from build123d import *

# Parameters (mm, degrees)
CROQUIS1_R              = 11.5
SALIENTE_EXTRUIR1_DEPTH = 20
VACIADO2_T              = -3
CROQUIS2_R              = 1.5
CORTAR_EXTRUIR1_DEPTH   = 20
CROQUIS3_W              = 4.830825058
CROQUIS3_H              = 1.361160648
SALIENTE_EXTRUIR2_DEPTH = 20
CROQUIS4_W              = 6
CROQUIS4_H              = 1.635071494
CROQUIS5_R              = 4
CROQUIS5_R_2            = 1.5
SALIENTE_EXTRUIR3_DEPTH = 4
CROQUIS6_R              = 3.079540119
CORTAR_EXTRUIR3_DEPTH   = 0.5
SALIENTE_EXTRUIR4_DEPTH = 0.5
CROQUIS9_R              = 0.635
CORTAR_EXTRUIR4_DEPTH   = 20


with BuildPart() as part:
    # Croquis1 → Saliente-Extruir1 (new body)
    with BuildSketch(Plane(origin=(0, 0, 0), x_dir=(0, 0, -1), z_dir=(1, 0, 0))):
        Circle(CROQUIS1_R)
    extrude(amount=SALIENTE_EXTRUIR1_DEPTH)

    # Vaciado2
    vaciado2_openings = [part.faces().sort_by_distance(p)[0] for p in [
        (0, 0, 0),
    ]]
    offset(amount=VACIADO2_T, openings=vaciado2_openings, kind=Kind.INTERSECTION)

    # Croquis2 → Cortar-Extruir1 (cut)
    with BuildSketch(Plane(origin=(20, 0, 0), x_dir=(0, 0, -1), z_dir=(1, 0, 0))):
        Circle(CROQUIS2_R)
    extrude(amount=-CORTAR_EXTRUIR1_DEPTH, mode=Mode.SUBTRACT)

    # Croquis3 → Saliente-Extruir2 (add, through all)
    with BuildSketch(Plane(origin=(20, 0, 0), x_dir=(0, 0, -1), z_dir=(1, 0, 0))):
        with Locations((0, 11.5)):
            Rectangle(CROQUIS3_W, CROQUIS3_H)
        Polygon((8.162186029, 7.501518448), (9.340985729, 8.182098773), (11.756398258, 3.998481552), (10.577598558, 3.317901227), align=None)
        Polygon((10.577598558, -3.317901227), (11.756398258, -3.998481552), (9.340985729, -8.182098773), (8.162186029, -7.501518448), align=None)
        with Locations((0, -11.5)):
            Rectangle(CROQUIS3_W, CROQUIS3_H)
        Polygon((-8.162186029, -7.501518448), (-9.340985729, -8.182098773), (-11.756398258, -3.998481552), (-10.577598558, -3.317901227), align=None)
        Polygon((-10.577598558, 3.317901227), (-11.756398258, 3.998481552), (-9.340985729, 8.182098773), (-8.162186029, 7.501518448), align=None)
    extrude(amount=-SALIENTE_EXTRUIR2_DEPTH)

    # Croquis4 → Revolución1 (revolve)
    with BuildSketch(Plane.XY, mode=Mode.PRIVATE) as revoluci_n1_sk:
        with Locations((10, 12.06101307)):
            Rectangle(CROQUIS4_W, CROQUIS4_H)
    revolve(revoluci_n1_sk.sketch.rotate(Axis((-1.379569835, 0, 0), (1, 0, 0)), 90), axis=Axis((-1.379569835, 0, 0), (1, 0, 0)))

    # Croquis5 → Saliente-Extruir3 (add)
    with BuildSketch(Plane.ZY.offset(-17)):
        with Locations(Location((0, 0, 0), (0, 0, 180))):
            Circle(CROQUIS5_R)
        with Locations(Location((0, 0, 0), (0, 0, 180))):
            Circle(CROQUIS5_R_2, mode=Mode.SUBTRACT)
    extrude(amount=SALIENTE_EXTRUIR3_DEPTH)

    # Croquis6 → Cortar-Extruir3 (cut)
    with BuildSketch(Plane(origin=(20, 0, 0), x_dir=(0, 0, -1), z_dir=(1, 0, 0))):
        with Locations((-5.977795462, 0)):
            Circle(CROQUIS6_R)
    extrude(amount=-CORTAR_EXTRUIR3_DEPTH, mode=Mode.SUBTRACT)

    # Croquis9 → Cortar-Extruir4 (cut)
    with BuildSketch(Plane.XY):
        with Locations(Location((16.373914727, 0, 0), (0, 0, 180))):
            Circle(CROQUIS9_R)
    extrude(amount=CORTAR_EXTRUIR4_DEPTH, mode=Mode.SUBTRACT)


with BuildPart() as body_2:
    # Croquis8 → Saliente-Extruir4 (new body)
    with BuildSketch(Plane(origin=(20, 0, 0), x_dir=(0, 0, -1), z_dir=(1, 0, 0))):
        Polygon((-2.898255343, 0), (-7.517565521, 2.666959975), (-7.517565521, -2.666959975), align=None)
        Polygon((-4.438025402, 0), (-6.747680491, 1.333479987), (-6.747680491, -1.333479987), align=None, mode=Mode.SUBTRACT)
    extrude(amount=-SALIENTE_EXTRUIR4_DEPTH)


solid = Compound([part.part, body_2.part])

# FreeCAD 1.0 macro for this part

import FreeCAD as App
import Part
import Sketcher

V = App.Vector
Q = App.Units.Quantity


def faces_at(feature, points):
    """Names of the faces that lie closest to the given points."""
    faces = feature.Shape.Faces
    near = lambda p: min(range(len(faces)), key=lambda i: faces[i].distToShape(Part.Vertex(*p))[0])
    return sorted({f"Face{near(p) + 1}" for p in points})


def add_polygon(sketch, points):
    """Adds a closed chain of lines whose ends are joined by coincident constraints."""
    first, n = sketch.GeometryCount, len(points)
    for a, b in zip(points, points[1:] + points[:1]):
        sketch.addGeometry(Part.LineSegment(App.Vector(*a, 0), App.Vector(*b, 0)), False)
    for i in range(n):
        sketch.addConstraint(Sketcher.Constraint("Coincident", first + i, 2, first + (i + 1) % n, 1))

doc = App.newDocument("Part")
body = doc.addObject("PartDesign::Body", "Body")

# Sketch on YZ plane
sketch1 = body.newObject("Sketcher::SketchObject", "Sketch")
sketch1.AttachmentSupport = (doc.getObject("YZ_Plane"), [""])
sketch1.MapMode = "FlatFace"
sketch1.addGeometry(Part.Circle(V(0, 0, 0), V(0, 0, 1), 12), False)
sketch1.addConstraint([
    Sketcher.Constraint("Coincident", 0, 3, -1, 1),
    Sketcher.Constraint("Diameter", 0, Q("23 mm")),
])
pad1 = body.newObject("PartDesign::Pad", "Pad")
pad1.Profile = sketch1
pad1.Length = 20
doc.recompute()

thickness = body.newObject("PartDesign::Thickness", "Thickness")
thickness.Base = (pad1, faces_at(pad1, [(0, 0, 0)]))
thickness.Value = 3
thickness.Reversed = True
thickness.Join = "Intersection"

# Sketch on YZ plane
sketch2 = body.newObject("Sketcher::SketchObject", "Sketch001")
sketch2.AttachmentSupport = (doc.getObject("YZ_Plane"), [""])
sketch2.MapMode = "FlatFace"
sketch2.AttachmentOffset = App.Placement(V(0, 0, 20), App.Rotation())
sketch2.addGeometry(Part.Circle(V(0, 0, 0), V(0, 0, 1), 1.5), False)
sketch2.addConstraint([
    Sketcher.Constraint("Coincident", 0, 3, -1, 1),
    Sketcher.Constraint("Diameter", 0, Q("3 mm")),
])
pocket1 = body.newObject("PartDesign::Pocket", "Pocket")
pocket1.Profile = sketch2
pocket1.Length = 20

# Sketch on YZ plane
sketch3 = body.newObject("Sketcher::SketchObject", "Sketch002")
sketch3.AttachmentSupport = (doc.getObject("YZ_Plane"), [""])
sketch3.MapMode = "FlatFace"
sketch3.AttachmentOffset = App.Placement(V(0, 0, 20), App.Rotation())
add_polygon(sketch3, [(12.2, 2.4), (10.8, 2.4), (10.8, -2.4), (12.2, -2.4)])  # lines 0-3
add_polygon(sketch3, [(8.2, -9.3), (7.5, -8.2), (3.3, -10.6), (4, -11.8)])  # lines 4-7
add_polygon(sketch3, [(-4, -11.8), (-3.3, -10.6), (-7.5, -8.2), (-8.2, -9.3)])  # lines 8-11
add_polygon(sketch3, [(-10.8, 2.4), (-12.2, 2.4), (-12.2, -2.4), (-10.8, -2.4)])  # lines 12-15
add_polygon(sketch3, [(-8.2, 9.3), (-7.5, 8.2), (-3.3, 10.6), (-4, 11.8)])  # lines 16-19
add_polygon(sketch3, [(4, 11.8), (3.3, 10.6), (7.5, 8.2), (8.2, 9.3)])  # lines 20-23
sketch3.addConstraint([
    Sketcher.Constraint("Horizontal", 0),
    Sketcher.Constraint("Vertical", 1),
    Sketcher.Constraint("Horizontal", 2),
    Sketcher.Constraint("Vertical", 3),
    Sketcher.Constraint("Horizontal", 12),
    Sketcher.Constraint("Vertical", 13),
    Sketcher.Constraint("Horizontal", 14),
    Sketcher.Constraint("Vertical", 15),
    Sketcher.Constraint("Symmetric", 2, 2, 12, 2, -1, 1),
    Sketcher.Constraint("Symmetric", 0, 2, 14, 2, -1, 1),
    Sketcher.Constraint("Symmetric", 4, 2, 16, 2, -1, 1),
    Sketcher.Constraint("Symmetric", 5, 2, 17, 2, -1, 1),
    Sketcher.Constraint("Symmetric", 6, 2, 18, 2, -1, 1),
    Sketcher.Constraint("Symmetric", 7, 2, 19, 2, -1, 1),
    Sketcher.Constraint("Symmetric", 8, 2, 20, 2, -1, 1),
    Sketcher.Constraint("Symmetric", 9, 2, 21, 2, -1, 1),
    Sketcher.Constraint("Symmetric", 10, 2, 22, 2, -1, 1),
    Sketcher.Constraint("Symmetric", 11, 2, 23, 2, -1, 1),
    Sketcher.Constraint("Symmetric", 5, 2, 8, 2, -2),
    Sketcher.Constraint("Symmetric", 4, 2, 9, 2, -2),
    Sketcher.Constraint("Symmetric", 7, 2, 10, 2, -2),
    Sketcher.Constraint("Symmetric", 6, 2, 11, 2, -2),
    Sketcher.Constraint("Perpendicular", 4, 5),
    Sketcher.Constraint("Perpendicular", 5, 6),
    Sketcher.Constraint("Perpendicular", 6, 7),
    Sketcher.Constraint("Horizontal", 3, 2, 12, 2),
    Sketcher.Constraint("Angle", 4, Q("120 deg")),
    Sketcher.Constraint("DistanceX", 8, 2, 7, 2, Q("11.5 mm")),
    Sketcher.Constraint("DistanceX", 0, 2, 0, 1, Q("1.361161 mm")),
    Sketcher.Constraint("DistanceX", -1, 1, 5, 2, Q("3.317901 mm")),
    Sketcher.Constraint("DistanceY", 5, 2, -1, 1, Q("10.577599 mm")),
    Sketcher.Constraint("DistanceY", 6, 2, -1, 1, Q("11.756398 mm")),
    Sketcher.Constraint("DistanceX", 4, 2, 1, 2, Q("3.317901 mm")),
    Sketcher.Constraint("DistanceY", 4, 2, 0, 2, Q("10.577599 mm")),
])
pad2 = body.newObject("PartDesign::Pad", "Pad001")
pad2.Profile = sketch3
pad2.Length = 20
pad2.Reversed = True

# Sketch on XY plane
sketch4 = body.newObject("Sketcher::SketchObject", "Sketch003")
sketch4.AttachmentSupport = (doc.getObject("XY_Plane"), [""])
sketch4.MapMode = "FlatFace"
add_polygon(sketch4, [(7, 12.9), (7, 11.2), (13, 11.2), (13, 12.9)])  # lines 0-3
sketch4.addConstraint([
    Sketcher.Constraint("Vertical", 0),
    Sketcher.Constraint("Horizontal", 1),
    Sketcher.Constraint("Vertical", 2),
    Sketcher.Constraint("Horizontal", 3),
    Sketcher.Constraint("DistanceX", 1, 1, 1, 2, Q("6 mm")),
    Sketcher.Constraint("DistanceX", -1, 1, 0, 2, Q("7 mm")),
    Sketcher.Constraint("DistanceY", 0, 2, 0, 1, Q("1.635071 mm")),
    Sketcher.Constraint("DistanceY", -1, 1, 2, 2, Q("12.878549 mm")),
])
revolution = body.newObject("PartDesign::Revolution", "Revolution")
revolution.Profile = sketch4
revolution.ReferenceAxis = (sketch4, ["H_Axis"])
revolution.Angle = 360

# Sketch on YZ plane
sketch5 = body.newObject("Sketcher::SketchObject", "Sketch004")
sketch5.AttachmentSupport = (doc.getObject("YZ_Plane"), [""])
sketch5.MapMode = "FlatFace"
sketch5.AttachmentOffset = App.Placement(V(0, 0, 17), App.Rotation())
sketch5.addGeometry([
    Part.Circle(V(0, 0, 0), V(0, 0, 1), 4),
    Part.Circle(V(0, 0, 0), V(0, 0, 1), 1.5),
], False)
sketch5.addConstraint([
    Sketcher.Constraint("Coincident", 0, 3, -1, 1),
    Sketcher.Constraint("Coincident", 1, 3, -1, 1),
    Sketcher.Constraint("Diameter", 0, Q("8 mm")),
    Sketcher.Constraint("Diameter", 1, Q("3 mm")),
])
pad3 = body.newObject("PartDesign::Pad", "Pad002")
pad3.Profile = sketch5
pad3.Length = 4
pad3.Reversed = True

# Sketch on YZ plane
sketch6 = body.newObject("Sketcher::SketchObject", "Sketch005")
sketch6.AttachmentSupport = (doc.getObject("YZ_Plane"), [""])
sketch6.MapMode = "FlatFace"
sketch6.AttachmentOffset = App.Placement(V(0, 0, 20), App.Rotation())
sketch6.addGeometry(Part.Circle(V(0, 6, 0), V(0, 0, 1), 3.1), False)
sketch6.addConstraint([
    Sketcher.Constraint("PointOnObject", 0, 3, -2),
    Sketcher.Constraint("Diameter", 0, Q("6.15908 mm")),
    Sketcher.Constraint("DistanceY", -1, 1, 0, 3, Q("5.977795 mm")),
])
pocket2 = body.newObject("PartDesign::Pocket", "Pocket001")
pocket2.Profile = sketch6
pocket2.Length = 0.5

# Sketch on XY plane
sketch7 = body.newObject("Sketcher::SketchObject", "Sketch006")
sketch7.AttachmentSupport = (doc.getObject("XY_Plane"), [""])
sketch7.MapMode = "FlatFace"
sketch7.addGeometry(Part.Circle(V(16.4, 0, 0), V(0, 0, 1), 0.6), False)
sketch7.addConstraint([
    Sketcher.Constraint("PointOnObject", 0, 3, -1),
    Sketcher.Constraint("Diameter", 0, Q("1.27 mm")),
    Sketcher.Constraint("DistanceX", -1, 1, 0, 3, Q("16.373915 mm")),
])
pocket3 = body.newObject("PartDesign::Pocket", "Pocket002")
pocket3.Profile = sketch7
pocket3.Length = 20
pocket3.Reversed = True
body2 = doc.addObject("PartDesign::Body", "Body001")

# Sketch on YZ plane
sketch8 = body2.newObject("Sketcher::SketchObject", "Sketch007")
sketch8.AttachmentSupport = (doc.getObject("YZ_Plane001"), [""])
sketch8.MapMode = "FlatFace"
sketch8.AttachmentOffset = App.Placement(V(0, 0, 20), App.Rotation())
add_polygon(sketch8, [(0, 2.9), (2.7, 7.5), (-2.7, 7.5)])  # lines 0-2
add_polygon(sketch8, [(1.3, 6.7), (0, 4.4), (-1.3, 6.7)])  # lines 3-5
sketch8.addConstraint([
    Sketcher.Constraint("Horizontal", 1),
    Sketcher.Constraint("Horizontal", 5),
    Sketcher.Constraint("PointOnObject", 2, 2, -2),
    Sketcher.Constraint("PointOnObject", 3, 2, -2),
    Sketcher.Constraint("Parallel", 0, 3),
    Sketcher.Constraint("Parallel", 2, 4),
    Sketcher.Constraint("Equal", 0, 2),
    Sketcher.Constraint("Angle", 0, Q("60 deg")),
    Sketcher.Constraint("DistanceX", 1, 2, 1, 1, Q("5.33392 mm")),
    Sketcher.Constraint("DistanceX", 5, 1, 5, 2, Q("2.66696 mm")),
    Sketcher.Constraint("DistanceY", -1, 1, 4, 2, Q("6.74768 mm")),
    Sketcher.Constraint("DistanceY", 2, 2, 3, 2, Q("1.53977 mm")),
])
pad4 = body2.newObject("PartDesign::Pad", "Pad003")
pad4.Profile = sketch8
pad4.Length = 0.5
pad4.Reversed = True

doc.recompute()
